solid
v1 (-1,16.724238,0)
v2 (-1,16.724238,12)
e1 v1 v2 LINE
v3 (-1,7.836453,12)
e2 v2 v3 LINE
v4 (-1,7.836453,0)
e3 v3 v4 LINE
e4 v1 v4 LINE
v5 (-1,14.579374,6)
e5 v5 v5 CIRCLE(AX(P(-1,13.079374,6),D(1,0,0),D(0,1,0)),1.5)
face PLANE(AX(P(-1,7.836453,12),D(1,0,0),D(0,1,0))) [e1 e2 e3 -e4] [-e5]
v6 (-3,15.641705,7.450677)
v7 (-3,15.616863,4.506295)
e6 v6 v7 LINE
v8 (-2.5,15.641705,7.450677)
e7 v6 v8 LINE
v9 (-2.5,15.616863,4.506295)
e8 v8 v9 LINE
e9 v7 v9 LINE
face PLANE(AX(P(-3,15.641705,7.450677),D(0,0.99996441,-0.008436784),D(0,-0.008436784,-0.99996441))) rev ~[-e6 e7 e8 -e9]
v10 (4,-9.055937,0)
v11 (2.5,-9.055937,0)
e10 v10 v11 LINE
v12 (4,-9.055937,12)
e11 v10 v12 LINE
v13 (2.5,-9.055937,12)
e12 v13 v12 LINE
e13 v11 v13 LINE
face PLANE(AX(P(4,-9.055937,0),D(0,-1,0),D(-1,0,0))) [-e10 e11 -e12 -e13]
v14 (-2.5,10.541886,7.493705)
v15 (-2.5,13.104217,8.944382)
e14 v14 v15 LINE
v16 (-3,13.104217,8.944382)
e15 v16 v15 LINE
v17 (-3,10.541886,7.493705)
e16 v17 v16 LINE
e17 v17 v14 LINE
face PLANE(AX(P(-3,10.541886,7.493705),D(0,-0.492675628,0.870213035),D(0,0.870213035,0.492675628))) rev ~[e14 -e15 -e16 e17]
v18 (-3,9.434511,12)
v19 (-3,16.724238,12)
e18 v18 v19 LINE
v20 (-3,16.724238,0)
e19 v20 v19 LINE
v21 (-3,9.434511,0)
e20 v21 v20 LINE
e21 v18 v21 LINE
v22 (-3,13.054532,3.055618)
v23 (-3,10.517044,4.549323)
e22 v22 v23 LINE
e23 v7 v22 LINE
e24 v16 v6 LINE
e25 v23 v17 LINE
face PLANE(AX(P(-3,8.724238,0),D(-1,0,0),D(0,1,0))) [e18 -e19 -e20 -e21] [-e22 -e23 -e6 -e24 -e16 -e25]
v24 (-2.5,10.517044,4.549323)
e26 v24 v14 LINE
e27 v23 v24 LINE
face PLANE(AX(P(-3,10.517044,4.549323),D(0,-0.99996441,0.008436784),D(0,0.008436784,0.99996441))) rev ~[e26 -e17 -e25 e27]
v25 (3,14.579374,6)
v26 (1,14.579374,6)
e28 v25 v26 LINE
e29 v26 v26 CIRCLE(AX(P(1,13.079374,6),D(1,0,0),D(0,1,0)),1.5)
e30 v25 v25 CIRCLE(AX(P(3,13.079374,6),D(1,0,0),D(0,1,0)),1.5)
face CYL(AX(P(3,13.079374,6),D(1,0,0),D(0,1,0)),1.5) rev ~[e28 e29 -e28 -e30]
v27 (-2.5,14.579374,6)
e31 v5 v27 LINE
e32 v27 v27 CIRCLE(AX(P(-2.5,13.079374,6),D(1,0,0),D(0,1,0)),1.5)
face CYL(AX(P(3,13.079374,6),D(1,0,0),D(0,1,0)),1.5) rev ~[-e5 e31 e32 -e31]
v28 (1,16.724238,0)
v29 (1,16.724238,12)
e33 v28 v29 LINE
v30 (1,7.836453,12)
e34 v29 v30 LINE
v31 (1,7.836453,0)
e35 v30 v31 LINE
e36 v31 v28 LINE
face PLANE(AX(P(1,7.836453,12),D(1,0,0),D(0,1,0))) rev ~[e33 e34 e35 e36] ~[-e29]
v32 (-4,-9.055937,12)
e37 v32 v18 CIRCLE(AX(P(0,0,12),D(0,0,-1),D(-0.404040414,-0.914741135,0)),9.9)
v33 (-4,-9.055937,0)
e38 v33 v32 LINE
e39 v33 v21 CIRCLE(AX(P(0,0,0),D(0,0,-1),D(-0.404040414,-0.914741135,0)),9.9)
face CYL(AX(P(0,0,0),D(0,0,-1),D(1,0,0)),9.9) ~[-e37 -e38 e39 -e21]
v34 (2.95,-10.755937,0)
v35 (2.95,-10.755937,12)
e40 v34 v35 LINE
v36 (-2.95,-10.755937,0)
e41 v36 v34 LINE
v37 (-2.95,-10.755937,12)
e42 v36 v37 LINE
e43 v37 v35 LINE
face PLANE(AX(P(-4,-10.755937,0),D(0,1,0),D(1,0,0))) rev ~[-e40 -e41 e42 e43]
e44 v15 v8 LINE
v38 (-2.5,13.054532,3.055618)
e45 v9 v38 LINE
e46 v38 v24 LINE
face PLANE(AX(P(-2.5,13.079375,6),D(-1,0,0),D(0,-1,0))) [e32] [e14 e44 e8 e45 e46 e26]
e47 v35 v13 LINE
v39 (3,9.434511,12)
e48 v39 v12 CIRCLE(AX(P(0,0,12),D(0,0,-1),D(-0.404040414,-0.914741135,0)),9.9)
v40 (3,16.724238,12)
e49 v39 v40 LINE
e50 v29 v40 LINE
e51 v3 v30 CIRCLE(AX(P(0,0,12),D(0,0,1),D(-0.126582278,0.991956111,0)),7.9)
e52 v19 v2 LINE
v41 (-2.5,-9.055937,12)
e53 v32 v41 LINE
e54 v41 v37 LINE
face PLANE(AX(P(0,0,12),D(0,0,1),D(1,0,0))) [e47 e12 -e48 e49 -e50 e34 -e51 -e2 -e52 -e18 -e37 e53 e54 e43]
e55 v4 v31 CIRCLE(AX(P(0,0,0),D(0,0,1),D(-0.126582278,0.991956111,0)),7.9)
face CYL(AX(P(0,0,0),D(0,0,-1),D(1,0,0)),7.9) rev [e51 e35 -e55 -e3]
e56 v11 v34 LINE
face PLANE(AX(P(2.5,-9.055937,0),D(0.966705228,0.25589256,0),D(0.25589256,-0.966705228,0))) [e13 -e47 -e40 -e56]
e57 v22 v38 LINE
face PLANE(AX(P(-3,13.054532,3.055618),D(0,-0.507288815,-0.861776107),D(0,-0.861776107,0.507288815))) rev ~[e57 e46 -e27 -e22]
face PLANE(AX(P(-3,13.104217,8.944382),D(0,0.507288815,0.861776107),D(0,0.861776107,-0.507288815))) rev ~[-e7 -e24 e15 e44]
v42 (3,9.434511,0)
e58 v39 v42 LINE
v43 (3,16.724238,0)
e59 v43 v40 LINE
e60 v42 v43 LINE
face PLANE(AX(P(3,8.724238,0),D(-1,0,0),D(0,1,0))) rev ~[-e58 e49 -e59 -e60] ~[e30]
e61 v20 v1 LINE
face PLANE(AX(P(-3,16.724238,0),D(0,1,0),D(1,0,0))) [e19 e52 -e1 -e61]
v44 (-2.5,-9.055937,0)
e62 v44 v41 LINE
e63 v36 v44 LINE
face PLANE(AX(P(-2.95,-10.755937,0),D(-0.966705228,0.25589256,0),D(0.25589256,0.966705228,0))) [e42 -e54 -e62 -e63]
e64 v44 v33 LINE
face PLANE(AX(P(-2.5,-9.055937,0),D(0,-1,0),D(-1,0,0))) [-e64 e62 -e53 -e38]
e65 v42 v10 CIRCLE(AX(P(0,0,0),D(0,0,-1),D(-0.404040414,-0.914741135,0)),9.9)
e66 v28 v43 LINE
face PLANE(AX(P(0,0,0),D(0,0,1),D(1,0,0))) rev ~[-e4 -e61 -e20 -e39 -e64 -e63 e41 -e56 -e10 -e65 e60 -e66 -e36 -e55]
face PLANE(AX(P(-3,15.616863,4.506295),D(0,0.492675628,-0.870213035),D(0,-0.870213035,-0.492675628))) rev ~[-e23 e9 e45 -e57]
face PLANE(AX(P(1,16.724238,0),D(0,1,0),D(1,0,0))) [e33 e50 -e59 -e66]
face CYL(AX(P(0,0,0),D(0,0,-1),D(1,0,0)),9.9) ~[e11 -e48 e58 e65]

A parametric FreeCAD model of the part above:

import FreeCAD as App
import Part
import Sketcher


def add_polygon(sketch, points):
    """Adds a closed chain of lines whose ends are joined by coincident constraints."""
    first, n = sketch.GeometryCount, len(points)
    for a, b in zip(points, points[1:] + points[:1]):
        sketch.addGeometry(Part.LineSegment(App.Vector(*a, 0), App.Vector(*b, 0)), False)
    for i in range(n):
        sketch.addConstraint(Sketcher.Constraint("Coincident", first + i, 2, first + (i + 1) % n, 1))

doc = App.newDocument("Part")
body = doc.addObject("PartDesign::Body", "Body")

# Sketch on XY plane
sketch1 = body.newObject("Sketcher::SketchObject", "Sketch")
sketch1.AttachmentSupport = (doc.getObject("XY_Plane"), [""])
sketch1.MapMode = "FlatFace"
sketch1.addGeometry([
    Part.Circle(App.Vector(0, 0, 0), App.Vector(0, 0, 1), 10),
    Part.Circle(App.Vector(0, 0, 0), App.Vector(0, 0, 1), 8),
], False)
sketch1.addConstraint([
    Sketcher.Constraint("Coincident", 0, 3, -1, 1),
    Sketcher.Constraint("Coincident", 1, 3, -1, 1),
    Sketcher.Constraint("Diameter", 0, 19.8),
    Sketcher.Constraint("Diameter", 1, 15.8),
])
pad1 = body.newObject("PartDesign::Pad", "Pad")
pad1.Profile = sketch1
pad1.Length = 12

# Sketch on XY plane
sketch2 = body.newObject("Sketcher::SketchObject", "Sketch001")
sketch2.AttachmentSupport = (doc.getObject("XY_Plane"), [""])
sketch2.MapMode = "FlatFace"
add_polygon(sketch2, [(4, -9.1), (-4, -9.1), (-4, -10.8), (4, -10.8)])  # lines 0-3
sketch2.addConstraint([
    Sketcher.Constraint("Horizontal", 0),
    Sketcher.Constraint("Vertical", 1),
    Sketcher.Constraint("Horizontal", 2),
    Sketcher.Constraint("Vertical", 3),
    Sketcher.Constraint("DistanceX", 0, 2, 0, 1, 8.0),
    Sketcher.Constraint("DistanceY", 1, 2, 1, 1, 1.7),
    Sketcher.Constraint("DistanceX", 0, 2, -1, 1, 4.0),
    Sketcher.Constraint("DistanceY", 0, 2, -1, 1, 9.055937),
])
pad2 = body.newObject("PartDesign::Pad", "Pad001")
pad2.Profile = sketch2
pad2.Length = 12

# Sketch on XY plane
sketch3 = body.newObject("Sketcher::SketchObject", "Sketch002")
sketch3.AttachmentSupport = (doc.getObject("XY_Plane"), [""])
sketch3.MapMode = "FlatFace"
add_polygon(sketch3, [(4, -9.1), (2.5, -9.1), (3, -10.8), (4, -10.8)])  # lines 0-3
add_polygon(sketch3, [(-3, -10.8), (-2.5, -9.1), (-4, -9.1), (-4, -10.8)])  # lines 4-7
sketch3.addConstraint([
    Sketcher.Constraint("Horizontal", 0),
    Sketcher.Constraint("Horizontal", 2),
    Sketcher.Constraint("Vertical", 3),
    Sketcher.Constraint("Horizontal", 5),
    Sketcher.Constraint("Vertical", 6),
    Sketcher.Constraint("Horizontal", 7),
    Sketcher.Constraint("Symmetric", 0, 2, 4, 2, -2),
    Sketcher.Constraint("Symmetric", 2, 2, 6, 2, -2),
    Sketcher.Constraint("Equal", 2, 7),
    Sketcher.Constraint("DistanceX", 0, 2, 0, 1, 1.5),
    Sketcher.Constraint("DistanceY", 3, 1, 3, 2, 1.7),
    Sketcher.Constraint("DistanceX", -1, 1, 2, 2, 4.0),
    Sketcher.Constraint("DistanceX", 2, 1, 2, 2, 1.05),
    Sketcher.Constraint("DistanceY", 0, 2, -1, 1, 9.055937),
])
pocket1 = body.newObject("PartDesign::Pocket", "Pocket")
pocket1.Profile = sketch3
pocket1.Type = "ThroughAll"
pocket1.Reversed = True

# Sketch on XY plane
sketch4 = body.newObject("Sketcher::SketchObject", "Sketch003")
sketch4.AttachmentSupport = (doc.getObject("XY_Plane"), [""])
sketch4.MapMode = "FlatFace"
sketch4.AttachmentOffset = App.Placement(App.Vector(0, 0, 12), App.Rotation())
add_polygon(sketch4, [(-1, 12.4), (-1, 7.8), (1, 7.8), (1, 12.4)])  # lines 0-3
sketch4.addConstraint([
    Sketcher.Constraint("Vertical", 0),
    Sketcher.Constraint("Horizontal", 1),
    Sketcher.Constraint("Vertical", 2),
    Sketcher.Constraint("Horizontal", 3),
    Sketcher.Constraint("DistanceX", 1, 1, 1, 2, 2.0),
    Sketcher.Constraint("DistanceX", 0, 2, -1, 1, 1.0),
    Sketcher.Constraint("DistanceY", 0, 2, 0, 1, 4.608413),
    Sketcher.Constraint("DistanceY", -1, 1, 0, 2, 7.836453),
])
pocket2 = body.newObject("PartDesign::Pocket", "Pocket001")
pocket2.Profile = sketch4
pocket2.Type = "ThroughAll"

# Sketch on XY plane
sketch5 = body.newObject("Sketcher::SketchObject", "Sketch004")
sketch5.AttachmentSupport = (doc.getObject("XY_Plane"), [""])
sketch5.MapMode = "FlatFace"
add_polygon(sketch5, [(-3, 16.7), (-3, 8.7), (-1, 8.7), (-1, 16.7)])  # lines 0-3
add_polygon(sketch5, [(1, 16.7), (1, 8.7), (3, 8.7), (3, 16.7)])  # lines 4-7
sketch5.addConstraint([
    Sketcher.Constraint("Vertical", 0),
    Sketcher.Constraint("Horizontal", 1),
    Sketcher.Constraint("Vertical", 2),
    Sketcher.Constraint("Horizontal", 3),
    Sketcher.Constraint("Vertical", 4),
    Sketcher.Constraint("Horizontal", 5),
    Sketcher.Constraint("Vertical", 6),
    Sketcher.Constraint("Horizontal", 7),
    Sketcher.Constraint("Symmetric", 1, 2, 4, 2, -2),
    Sketcher.Constraint("Symmetric", 3, 2, 6, 2, -2),
    Sketcher.Constraint("DistanceX", 1, 1, 1, 2, 2.0),
    Sketcher.Constraint("DistanceY", 0, 2, 0, 1, 8.0),
    Sketcher.Constraint("DistanceX", 0, 2, -1, 1, 3.0),
    Sketcher.Constraint("DistanceY", -1, 1, 0, 2, 8.724238),
])
pad3 = body.newObject("PartDesign::Pad", "Pad002")
pad3.Profile = sketch5
pad3.Length = 12

# Sketch on YZ plane
sketch6 = body.newObject("Sketcher::SketchObject", "Sketch005")
sketch6.AttachmentSupport = (doc.getObject("YZ_Plane"), [""])
sketch6.MapMode = "FlatFace"
sketch6.AttachmentOffset = App.Placement(App.Vector(0, 0, 3), App.Rotation())
sketch6.addGeometry(Part.Circle(App.Vector(13.1, 6, 0), App.Vector(0, 0, 1), 1.5), False)
sketch6.addConstraint([
    Sketcher.Constraint("Diameter", 0, 3.0),
    Sketcher.Constraint("DistanceY", -1, 1, 0, 3, 6.0),
    Sketcher.Constraint("DistanceX", -1, 1, 0, 3, 13.079374),
])
pocket3 = body.newObject("PartDesign::Pocket", "Pocket002")
pocket3.Profile = sketch6
pocket3.Type = "ThroughAll"

# Sketch on YZ plane
sketch7 = body.newObject("Sketcher::SketchObject", "Sketch006")
sketch7.AttachmentSupport = (doc.getObject("YZ_Plane"), [""])
sketch7.MapMode = "FlatFace"
sketch7.AttachmentOffset = App.Placement(App.Vector(0, 0, -3), App.Rotation())
add_polygon(sketch7, [(13.1, 8.9), (15.6, 7.5), (15.6, 4.5), (13.1, 3.1), (10.5, 4.5), (10.5, 7.5)])  # lines 0-5
sketch7.addConstraint([
    Sketcher.Constraint("Parallel", 0, 3),
    Sketcher.Constraint("Parallel", 1, 4),
    Sketcher.Constraint("Parallel", 2, 5),
    Sketcher.Constraint("Equal", 0, 1),
    Sketcher.Constraint("Equal", 1, 2),
    Sketcher.Constraint("Equal", 2, 3),
    Sketcher.Constraint("DistanceY", -1, 1, 2, 2, 3.055618),
    Sketcher.Constraint("DistanceY", -1, 1, 5, 2, 8.944382),
    Sketcher.Constraint("DistanceX", 1, 2, 0, 2, 0.024842),
    Sketcher.Constraint("DistanceY", 1, 2, 0, 2, 2.944382),
    Sketcher.Constraint("DistanceX", 2, 2, 1, 2, 2.562331),
    Sketcher.Constraint("DistanceX", -1, 1, 0, 2, 15.641705),
])
pocket4 = body.newObject("PartDesign::Pocket", "Pocket003")
pocket4.Profile = sketch7
pocket4.Length = 0.5
pocket4.Reversed = True

doc.recompute()
